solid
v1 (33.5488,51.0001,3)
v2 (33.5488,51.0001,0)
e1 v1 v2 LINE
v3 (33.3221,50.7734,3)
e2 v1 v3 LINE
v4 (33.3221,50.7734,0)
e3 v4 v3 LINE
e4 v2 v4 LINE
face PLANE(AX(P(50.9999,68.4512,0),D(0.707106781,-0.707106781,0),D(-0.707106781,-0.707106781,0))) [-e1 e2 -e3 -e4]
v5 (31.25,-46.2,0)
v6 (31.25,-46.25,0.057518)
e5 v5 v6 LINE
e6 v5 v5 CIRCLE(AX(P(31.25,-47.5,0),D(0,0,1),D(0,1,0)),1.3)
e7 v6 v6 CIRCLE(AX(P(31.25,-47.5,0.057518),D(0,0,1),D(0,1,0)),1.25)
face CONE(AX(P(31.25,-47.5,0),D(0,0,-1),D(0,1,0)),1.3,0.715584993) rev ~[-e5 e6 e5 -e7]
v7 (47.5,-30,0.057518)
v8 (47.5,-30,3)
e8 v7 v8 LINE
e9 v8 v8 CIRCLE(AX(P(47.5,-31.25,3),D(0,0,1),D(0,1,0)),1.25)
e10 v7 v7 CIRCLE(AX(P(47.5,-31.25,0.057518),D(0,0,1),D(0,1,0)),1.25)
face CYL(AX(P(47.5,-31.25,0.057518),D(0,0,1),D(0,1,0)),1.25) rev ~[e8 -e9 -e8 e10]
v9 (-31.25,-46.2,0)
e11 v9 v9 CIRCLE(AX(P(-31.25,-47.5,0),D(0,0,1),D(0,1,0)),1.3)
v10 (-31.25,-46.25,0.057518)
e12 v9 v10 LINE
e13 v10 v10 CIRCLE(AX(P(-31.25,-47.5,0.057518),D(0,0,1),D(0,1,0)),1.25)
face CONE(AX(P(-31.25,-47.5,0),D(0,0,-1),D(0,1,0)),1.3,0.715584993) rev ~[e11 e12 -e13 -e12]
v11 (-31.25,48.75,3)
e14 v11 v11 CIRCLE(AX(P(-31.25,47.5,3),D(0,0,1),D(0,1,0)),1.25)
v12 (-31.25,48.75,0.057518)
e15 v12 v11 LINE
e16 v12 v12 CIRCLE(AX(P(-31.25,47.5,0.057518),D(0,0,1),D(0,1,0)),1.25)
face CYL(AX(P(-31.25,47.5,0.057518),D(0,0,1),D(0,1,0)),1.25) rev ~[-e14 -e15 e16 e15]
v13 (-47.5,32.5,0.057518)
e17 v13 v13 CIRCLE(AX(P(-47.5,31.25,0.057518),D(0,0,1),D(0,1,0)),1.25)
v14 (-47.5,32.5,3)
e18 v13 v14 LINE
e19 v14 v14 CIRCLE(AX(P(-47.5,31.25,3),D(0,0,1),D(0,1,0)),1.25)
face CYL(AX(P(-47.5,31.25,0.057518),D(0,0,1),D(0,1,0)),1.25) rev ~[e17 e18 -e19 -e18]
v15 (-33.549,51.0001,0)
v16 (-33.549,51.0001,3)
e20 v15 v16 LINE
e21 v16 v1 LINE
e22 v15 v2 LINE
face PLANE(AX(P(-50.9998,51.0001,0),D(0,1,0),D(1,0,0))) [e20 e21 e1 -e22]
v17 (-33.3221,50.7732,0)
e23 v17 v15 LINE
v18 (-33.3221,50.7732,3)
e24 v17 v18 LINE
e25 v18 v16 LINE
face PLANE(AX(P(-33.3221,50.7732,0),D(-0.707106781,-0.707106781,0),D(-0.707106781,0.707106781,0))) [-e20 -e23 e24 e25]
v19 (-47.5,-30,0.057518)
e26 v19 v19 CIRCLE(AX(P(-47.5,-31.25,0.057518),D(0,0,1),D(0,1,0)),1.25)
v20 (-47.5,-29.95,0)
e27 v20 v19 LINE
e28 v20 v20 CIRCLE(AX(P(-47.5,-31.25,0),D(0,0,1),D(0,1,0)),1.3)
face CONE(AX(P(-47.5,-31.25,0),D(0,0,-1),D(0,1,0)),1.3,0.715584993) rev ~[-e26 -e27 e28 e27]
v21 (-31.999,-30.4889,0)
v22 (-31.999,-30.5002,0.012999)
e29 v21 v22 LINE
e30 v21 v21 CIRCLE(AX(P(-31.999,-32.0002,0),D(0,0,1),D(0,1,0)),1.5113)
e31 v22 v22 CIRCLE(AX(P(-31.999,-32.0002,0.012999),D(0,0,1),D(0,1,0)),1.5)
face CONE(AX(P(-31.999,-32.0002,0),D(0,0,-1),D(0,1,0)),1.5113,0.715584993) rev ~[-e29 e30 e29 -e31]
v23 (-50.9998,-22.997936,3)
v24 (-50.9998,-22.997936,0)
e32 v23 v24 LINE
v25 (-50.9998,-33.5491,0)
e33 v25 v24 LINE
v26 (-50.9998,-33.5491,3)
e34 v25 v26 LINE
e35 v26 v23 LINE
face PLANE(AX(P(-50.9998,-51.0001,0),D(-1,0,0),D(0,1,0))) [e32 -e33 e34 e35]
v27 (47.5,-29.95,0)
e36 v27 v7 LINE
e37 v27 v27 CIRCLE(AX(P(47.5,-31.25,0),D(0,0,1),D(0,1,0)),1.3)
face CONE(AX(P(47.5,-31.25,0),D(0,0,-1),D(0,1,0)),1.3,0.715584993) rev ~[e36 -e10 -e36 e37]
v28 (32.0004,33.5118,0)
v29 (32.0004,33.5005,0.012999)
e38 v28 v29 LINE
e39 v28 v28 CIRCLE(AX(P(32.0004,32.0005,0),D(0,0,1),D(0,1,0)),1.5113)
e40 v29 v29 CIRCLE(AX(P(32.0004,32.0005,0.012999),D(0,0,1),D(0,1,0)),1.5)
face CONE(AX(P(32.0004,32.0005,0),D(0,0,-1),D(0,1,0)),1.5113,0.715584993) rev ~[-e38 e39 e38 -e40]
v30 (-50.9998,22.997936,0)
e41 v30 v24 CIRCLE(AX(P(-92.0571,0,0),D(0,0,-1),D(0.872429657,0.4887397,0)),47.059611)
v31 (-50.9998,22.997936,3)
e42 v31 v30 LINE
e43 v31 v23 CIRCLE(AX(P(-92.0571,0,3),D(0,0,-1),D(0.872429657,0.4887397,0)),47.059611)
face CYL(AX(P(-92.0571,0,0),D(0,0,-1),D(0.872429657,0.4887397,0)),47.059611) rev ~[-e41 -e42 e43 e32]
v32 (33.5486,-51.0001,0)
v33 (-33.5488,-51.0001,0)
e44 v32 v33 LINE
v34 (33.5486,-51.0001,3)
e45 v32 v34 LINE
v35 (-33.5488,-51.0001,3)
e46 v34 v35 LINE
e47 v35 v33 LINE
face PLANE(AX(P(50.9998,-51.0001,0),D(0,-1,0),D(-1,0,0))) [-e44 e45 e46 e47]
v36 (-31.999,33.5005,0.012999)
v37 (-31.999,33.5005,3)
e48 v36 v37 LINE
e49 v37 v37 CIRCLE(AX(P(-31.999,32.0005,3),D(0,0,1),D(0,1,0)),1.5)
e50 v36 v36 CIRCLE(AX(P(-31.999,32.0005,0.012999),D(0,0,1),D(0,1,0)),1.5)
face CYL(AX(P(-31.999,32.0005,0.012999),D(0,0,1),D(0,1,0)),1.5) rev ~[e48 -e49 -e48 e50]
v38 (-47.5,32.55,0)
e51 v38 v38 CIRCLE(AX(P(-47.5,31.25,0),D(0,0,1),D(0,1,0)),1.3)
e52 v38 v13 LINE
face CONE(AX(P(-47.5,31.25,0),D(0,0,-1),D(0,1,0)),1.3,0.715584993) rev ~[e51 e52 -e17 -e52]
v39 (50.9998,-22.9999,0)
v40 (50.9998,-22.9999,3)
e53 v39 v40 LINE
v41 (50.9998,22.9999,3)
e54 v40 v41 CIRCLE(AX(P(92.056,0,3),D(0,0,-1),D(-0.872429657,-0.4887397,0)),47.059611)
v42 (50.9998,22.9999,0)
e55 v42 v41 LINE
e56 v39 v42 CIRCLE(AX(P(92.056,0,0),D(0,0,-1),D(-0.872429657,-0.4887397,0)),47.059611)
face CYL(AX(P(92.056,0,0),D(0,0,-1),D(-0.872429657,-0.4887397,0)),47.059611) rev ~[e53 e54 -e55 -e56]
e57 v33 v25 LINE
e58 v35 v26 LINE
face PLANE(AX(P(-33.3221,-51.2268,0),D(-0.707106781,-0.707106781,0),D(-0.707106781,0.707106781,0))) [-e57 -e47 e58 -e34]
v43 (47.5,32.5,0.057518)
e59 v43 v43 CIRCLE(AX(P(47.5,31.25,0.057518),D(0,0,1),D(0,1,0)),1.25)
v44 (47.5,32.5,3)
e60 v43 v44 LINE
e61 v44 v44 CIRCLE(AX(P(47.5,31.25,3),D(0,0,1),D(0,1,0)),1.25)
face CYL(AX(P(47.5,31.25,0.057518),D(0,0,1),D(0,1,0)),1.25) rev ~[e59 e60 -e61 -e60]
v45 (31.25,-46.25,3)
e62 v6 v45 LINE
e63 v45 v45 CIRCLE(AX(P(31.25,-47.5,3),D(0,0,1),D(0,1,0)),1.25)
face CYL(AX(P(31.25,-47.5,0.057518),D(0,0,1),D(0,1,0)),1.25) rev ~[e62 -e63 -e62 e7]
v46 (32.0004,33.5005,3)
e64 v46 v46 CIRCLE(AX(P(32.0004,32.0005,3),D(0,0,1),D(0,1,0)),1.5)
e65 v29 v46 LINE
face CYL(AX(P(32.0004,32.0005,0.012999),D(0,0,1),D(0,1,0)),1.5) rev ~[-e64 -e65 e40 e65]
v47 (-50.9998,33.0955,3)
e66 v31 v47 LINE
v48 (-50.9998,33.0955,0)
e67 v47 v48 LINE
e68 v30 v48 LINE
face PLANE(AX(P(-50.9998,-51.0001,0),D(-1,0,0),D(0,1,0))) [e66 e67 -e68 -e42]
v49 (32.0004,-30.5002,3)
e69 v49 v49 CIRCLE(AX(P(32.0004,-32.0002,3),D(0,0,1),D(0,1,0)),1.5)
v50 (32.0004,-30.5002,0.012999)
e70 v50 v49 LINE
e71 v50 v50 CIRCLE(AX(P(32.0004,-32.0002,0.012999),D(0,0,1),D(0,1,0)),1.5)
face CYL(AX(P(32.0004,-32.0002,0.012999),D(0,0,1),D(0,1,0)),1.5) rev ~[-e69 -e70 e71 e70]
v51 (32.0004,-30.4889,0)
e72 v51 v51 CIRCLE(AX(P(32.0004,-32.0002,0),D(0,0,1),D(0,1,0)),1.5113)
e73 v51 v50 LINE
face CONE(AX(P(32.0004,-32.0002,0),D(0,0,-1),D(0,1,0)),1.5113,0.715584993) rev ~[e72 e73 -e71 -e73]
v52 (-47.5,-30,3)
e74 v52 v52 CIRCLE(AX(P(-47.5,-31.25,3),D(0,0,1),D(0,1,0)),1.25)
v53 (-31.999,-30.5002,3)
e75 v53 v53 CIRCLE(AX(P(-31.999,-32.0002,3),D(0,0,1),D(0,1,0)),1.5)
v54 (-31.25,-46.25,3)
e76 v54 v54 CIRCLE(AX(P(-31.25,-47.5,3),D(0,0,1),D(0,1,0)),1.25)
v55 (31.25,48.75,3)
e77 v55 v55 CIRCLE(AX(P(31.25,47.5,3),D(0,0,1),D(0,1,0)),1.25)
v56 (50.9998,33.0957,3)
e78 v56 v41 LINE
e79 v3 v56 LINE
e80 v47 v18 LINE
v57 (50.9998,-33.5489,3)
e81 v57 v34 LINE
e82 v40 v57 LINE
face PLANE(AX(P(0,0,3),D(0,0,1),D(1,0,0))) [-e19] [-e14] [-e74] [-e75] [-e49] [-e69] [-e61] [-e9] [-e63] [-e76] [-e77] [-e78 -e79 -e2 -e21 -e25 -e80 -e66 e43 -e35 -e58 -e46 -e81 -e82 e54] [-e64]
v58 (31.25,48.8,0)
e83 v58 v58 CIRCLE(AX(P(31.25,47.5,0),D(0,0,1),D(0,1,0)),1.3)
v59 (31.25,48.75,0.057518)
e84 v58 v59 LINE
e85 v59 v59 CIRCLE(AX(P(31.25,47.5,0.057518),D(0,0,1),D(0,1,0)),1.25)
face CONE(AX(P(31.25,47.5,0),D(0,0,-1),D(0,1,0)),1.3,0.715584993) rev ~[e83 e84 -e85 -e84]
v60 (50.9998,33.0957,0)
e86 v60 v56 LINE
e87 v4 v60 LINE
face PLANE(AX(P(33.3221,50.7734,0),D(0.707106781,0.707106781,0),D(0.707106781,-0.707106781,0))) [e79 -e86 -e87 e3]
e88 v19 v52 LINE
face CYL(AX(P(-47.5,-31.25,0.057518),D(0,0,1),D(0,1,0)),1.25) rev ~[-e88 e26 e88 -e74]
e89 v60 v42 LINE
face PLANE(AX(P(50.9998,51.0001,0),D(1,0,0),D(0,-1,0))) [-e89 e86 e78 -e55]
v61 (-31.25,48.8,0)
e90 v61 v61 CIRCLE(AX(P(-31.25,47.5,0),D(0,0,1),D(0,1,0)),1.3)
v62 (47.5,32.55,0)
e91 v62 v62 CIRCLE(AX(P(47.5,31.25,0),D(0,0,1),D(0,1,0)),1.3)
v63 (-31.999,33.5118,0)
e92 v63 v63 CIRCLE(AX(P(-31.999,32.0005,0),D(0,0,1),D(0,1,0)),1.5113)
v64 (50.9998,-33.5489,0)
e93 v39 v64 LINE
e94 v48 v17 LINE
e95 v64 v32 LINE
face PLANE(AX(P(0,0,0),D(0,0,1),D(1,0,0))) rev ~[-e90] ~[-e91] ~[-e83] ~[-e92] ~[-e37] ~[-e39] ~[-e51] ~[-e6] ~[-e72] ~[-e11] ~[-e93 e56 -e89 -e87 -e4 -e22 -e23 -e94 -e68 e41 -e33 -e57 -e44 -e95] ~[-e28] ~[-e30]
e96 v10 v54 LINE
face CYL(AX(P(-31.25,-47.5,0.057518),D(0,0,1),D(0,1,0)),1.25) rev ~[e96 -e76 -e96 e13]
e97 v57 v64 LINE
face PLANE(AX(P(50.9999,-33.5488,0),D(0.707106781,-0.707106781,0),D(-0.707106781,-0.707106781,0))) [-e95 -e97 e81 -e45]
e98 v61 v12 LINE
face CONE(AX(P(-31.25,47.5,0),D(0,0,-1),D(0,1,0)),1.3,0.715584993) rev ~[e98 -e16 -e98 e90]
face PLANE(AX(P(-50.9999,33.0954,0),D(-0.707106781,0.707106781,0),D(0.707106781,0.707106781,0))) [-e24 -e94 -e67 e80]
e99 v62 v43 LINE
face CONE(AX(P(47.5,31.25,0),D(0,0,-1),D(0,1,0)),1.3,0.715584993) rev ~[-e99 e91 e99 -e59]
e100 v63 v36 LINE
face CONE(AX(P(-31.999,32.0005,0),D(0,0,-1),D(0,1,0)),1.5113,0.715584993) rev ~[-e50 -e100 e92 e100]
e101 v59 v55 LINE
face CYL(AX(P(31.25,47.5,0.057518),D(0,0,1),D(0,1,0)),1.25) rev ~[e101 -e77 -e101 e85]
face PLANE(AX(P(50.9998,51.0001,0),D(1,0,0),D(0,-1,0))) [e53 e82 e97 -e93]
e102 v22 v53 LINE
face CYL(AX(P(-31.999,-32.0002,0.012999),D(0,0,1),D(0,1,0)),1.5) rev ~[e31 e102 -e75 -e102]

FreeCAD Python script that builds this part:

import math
import FreeCAD as App
import Part
import Sketcher

V = App.Vector
Q = App.Units.Quantity


def add_polygon(sketch, points):
    """Adds a closed chain of lines whose ends are joined by coincident constraints."""
    first, n = sketch.GeometryCount, len(points)
    for a, b in zip(points, points[1:] + points[:1]):
        sketch.addGeometry(Part.LineSegment(App.Vector(*a, 0), App.Vector(*b, 0)), False)
    for i in range(n):
        sketch.addConstraint(Sketcher.Constraint("Coincident", first + i, 2, first + (i + 1) % n, 1))

doc = App.newDocument("Part")
body = doc.addObject("PartDesign::Body", "Body")

# Sketch on XY plane
sketch1 = doc.addObject("Sketcher::SketchObject", "Sketch")
body.addObject(sketch1)
sketch1.AttachmentSupport = (doc.XY_Plane, [""])
sketch1.MapMode = "FlatFace"
add_polygon(sketch1, [(-50.9998, -51.0001), (50.9998, -51.0001), (50.9998, 51.0001), (-50.9998, 51.0001)])  # lines 0-3
sketch1.addConstraint([
    Sketcher.Constraint("Horizontal", 0),
    Sketcher.Constraint("Vertical", 1),
    Sketcher.Constraint("Horizontal", 2),
    Sketcher.Constraint("Vertical", 3),
    Sketcher.Constraint("Symmetric", 0, 2, 2, 2, -1, 1),
    Sketcher.Constraint("DistanceX", 0, 1, 0, 2, Q("101.9996 mm")),
    Sketcher.Constraint("DistanceY", 1, 1, 1, 2, Q("102.0002 mm")),
])
pad1 = doc.addObject("PartDesign::Pad", "Pad")
body.addObject(pad1)
pad1.Profile = sketch1
pad1.Length = 3

# Sketch on XY plane
sketch2 = doc.addObject("Sketcher::SketchObject", "Sketch001")
body.addObject(sketch2)
sketch2.AttachmentSupport = (doc.XY_Plane, [""])
sketch2.MapMode = "FlatFace"
sketch2.addGeometry([
    Part.Circle(V(-31.999, -32.0002, 0), V(0, 0, 1), 1.5),
    Part.Circle(V(-31.999, 32.0005, 0), V(0, 0, 1), 1.5),
    Part.Circle(V(32.0004, 32.0005, 0), V(0, 0, 1), 1.5),
    Part.Circle(V(32.0004, -32.0002, 0), V(0, 0, 1), 1.5),
], False)
sketch2.addConstraint([
    Sketcher.Constraint("Equal", 0, 1),
    Sketcher.Constraint("Equal", 1, 2),
    Sketcher.Constraint("Equal", 2, 3),
    Sketcher.Constraint("Symmetric", 0, 3, 1, 3, -1),
    Sketcher.Constraint("Symmetric", 2, 3, 3, 3, -1),
    Sketcher.Constraint("Horizontal", 1, 3, 2, 3),
    Sketcher.Constraint("Diameter", 0, Q("3 mm")),
    Sketcher.Constraint("DistanceX", 0, 3, -1, 1, Q("31.999 mm")),
    Sketcher.Constraint("DistanceY", 0, 3, -1, 1, Q("32.0002 mm")),
    Sketcher.Constraint("DistanceX", -1, 1, 2, 3, Q("32.0004 mm")),
])
doc.recompute()
hole = doc.addObject("PartDesign::Hole", "Hole")
body.addObject(hole)
hole.Profile = sketch2
hole.ThreadType = "None"
hole.Diameter = 3
hole.DepthType = "ThroughAll"
hole.HoleCutType = "Countersink"
hole.HoleCutDiameter = 3.0226
hole.HoleCutCountersinkAngle = 82
hole.Reversed = True

# Sketch on XY plane
sketch3 = doc.addObject("Sketcher::SketchObject", "Sketch002")
body.addObject(sketch3)
sketch3.AttachmentSupport = (doc.XY_Plane, [""])
sketch3.MapMode = "FlatFace"
sketch3.addGeometry([
    Part.Circle(V(47.5, -31.25, 0), V(0, 0, 1), 1.25),  # 0
    Part.Circle(V(31.25, -47.5, 0), V(0, 0, 1), 1.25),  # 1
    Part.Circle(V(-31.25, -47.5, 0), V(0, 0, 1), 1.25),  # 2
    Part.Circle(V(-47.5, -31.25, 0), V(0, 0, 1), 1.25),  # 3
    Part.Circle(V(47.5, 31.25, 0), V(0, 0, 1), 1.25),  # 4
    Part.Circle(V(31.25, 47.5, 0), V(0, 0, 1), 1.25),  # 5
    Part.Circle(V(-31.25, 47.5, 0), V(0, 0, 1), 1.25),  # 6
    Part.Circle(V(-47.5, 31.25, 0), V(0, 0, 1), 1.25),  # 7
], False)
sketch3.addConstraint([
    Sketcher.Constraint("Equal", 0, 1),
    Sketcher.Constraint("Equal", 1, 2),
    Sketcher.Constraint("Equal", 2, 3),
    Sketcher.Constraint("Equal", 3, 4),
    Sketcher.Constraint("Equal", 4, 5),
    Sketcher.Constraint("Equal", 5, 6),
    Sketcher.Constraint("Equal", 6, 7),
    Sketcher.Constraint("Symmetric", 3, 3, 4, 3, -1, 1),
    Sketcher.Constraint("Symmetric", 2, 3, 5, 3, -1, 1),
    Sketcher.Constraint("Symmetric", 1, 3, 6, 3, -1, 1),
    Sketcher.Constraint("Symmetric", 0, 3, 7, 3, -1, 1),
    Sketcher.Constraint("Symmetric", 1, 3, 2, 3, -2),
    Sketcher.Constraint("Symmetric", 0, 3, 3, 3, -2),
    Sketcher.Constraint("Diameter", 0, Q("2.5 mm")),
    Sketcher.Constraint("DistanceX", 3, 3, 0, 3, Q("95 mm")),
    Sketcher.Constraint("DistanceY", 1, 3, 5, 3, Q("95 mm")),
    Sketcher.Constraint("DistanceX", 2, 3, 1, 3, Q("62.5 mm")),
    Sketcher.Constraint("DistanceY", 0, 3, 4, 3, Q("62.5 mm")),
])
doc.recompute()
hole2 = doc.addObject("PartDesign::Hole", "Hole001")
body.addObject(hole2)
hole2.Profile = sketch3
hole2.ThreadType = "None"
hole2.Diameter = 2.5
hole2.DepthType = "ThroughAll"
hole2.HoleCutType = "Countersink"
hole2.HoleCutDiameter = 2.6
hole2.HoleCutCountersinkAngle = 82
hole2.Reversed = True

# Sketch on XY plane
sketch4 = doc.addObject("Sketcher::SketchObject", "Sketch003")
body.addObject(sketch4)
sketch4.AttachmentSupport = (doc.XY_Plane, [""])
sketch4.MapMode = "FlatFace"
add_polygon(sketch4, [(-50.9999, 33.0954), (-68.6779, 50.7734), (-51.0001, 68.4512), (-33.3221, 50.7732)])  # lines 0-3
add_polygon(sketch4, [(51.0001, 33.0954), (33.3221, 50.7734), (50.9999, 68.4512), (68.6779, 50.7732)])  # lines 4-7
add_polygon(sketch4, [(51.0001, -68.9046), (33.3221, -51.2266), (50.9999, -33.5488), (68.6779, -51.2268)])  # lines 8-11
add_polygon(sketch4, [(-50.9999, -68.9046), (-68.6779, -51.2266), (-51.0001, -33.5488), (-33.3221, -51.2268)])  # lines 12-15
sketch4.addConstraint([
    Sketcher.Constraint("Symmetric", 2, 2, 4, 2, -2),
    Sketcher.Constraint("Symmetric", 1, 2, 5, 2, -2),
    Sketcher.Constraint("Symmetric", 0, 2, 6, 2, -2),
    Sketcher.Constraint("Symmetric", 3, 2, 7, 2, -2),
    Sketcher.Constraint("Symmetric", 10, 2, 12, 2, -2),
    Sketcher.Constraint("Symmetric", 9, 2, 13, 2, -2),
    Sketcher.Constraint("Symmetric", 8, 2, 14, 2, -2),
    Sketcher.Constraint("Symmetric", 11, 2, 15, 2, -2),
    Sketcher.Constraint("Perpendicular", 0, 1),
    Sketcher.Constraint("Perpendicular", 1, 2),
    Sketcher.Constraint("Perpendicular", 2, 3),
    Sketcher.Constraint("Perpendicular", 3, 4),
    Sketcher.Constraint("Perpendicular", 7, 8),
    Sketcher.Constraint("Perpendicular", 8, 9),
    Sketcher.Constraint("Perpendicular", 9, 10),
    Sketcher.Constraint("Perpendicular", 10, 11),
    Sketcher.Constraint("Horizontal", 0, 2, 2, 2),
    Sketcher.Constraint("Horizontal", 8, 2, 10, 2),
    Sketcher.Constraint("Vertical", 4, 2, 8, 2),
    Sketcher.Constraint("Vertical", 5, 2, 9, 2),
    Sketcher.Constraint("DistanceX", 1, 2, -1, 1, Q("51 mm")),
    Sketcher.Constraint("DistanceY", 8, 2, 4, 2, Q("102 mm")),
    Sketcher.Constraint("DistanceX", 0, 2, -1, 1, Q("68.678 mm")),
    Sketcher.Constraint("DistanceY", -1, 1, 0, 2, Q("50.7734 mm")),
])
pocket1 = doc.addObject("PartDesign::Pocket", "Pocket")
body.addObject(pocket1)
pocket1.Profile = sketch4
pocket1.Length = 3
pocket1.Reversed = True

# Sketch on XY plane
sketch5 = doc.addObject("Sketcher::SketchObject", "Sketch004")
body.addObject(sketch5)
sketch5.AttachmentSupport = (doc.XY_Plane, [""])
sketch5.MapMode = "FlatFace"
sketch5.addGeometry([
    Part.LineSegment(V(50.9998, 22.9999, 0), V(50.9998, -22.9999, 0)),
    Part.ArcOfCircle(Part.Circle(V(92.056, 0, 0), V(0, 0, 1), 47.059611), math.radians(150.742221), math.radians(209.257779)),
    Part.LineSegment(V(-51.0009, -22.9999, 0), V(-51.0009, 22.9999, 0)),
    Part.ArcOfCircle(Part.Circle(V(-92.0571, 0, 0), V(0, 0, 1), 47.059611), math.radians(-29.257779), math.radians(29.257779)),
], False)
sketch5.addConstraint([
    Sketcher.Constraint("Coincident", 0, 1, 1, 1),
    Sketcher.Constraint("Coincident", 1, 2, 0, 2),
    Sketcher.Constraint("Coincident", 2, 1, 3, 1),
    Sketcher.Constraint("Coincident", 3, 2, 2, 2),
    Sketcher.Constraint("Vertical", 0),
    Sketcher.Constraint("Vertical", 2),
    Sketcher.Constraint("Equal", 1, 3),
    Sketcher.Constraint("PointOnObject", 1, 3, -1),
    Sketcher.Constraint("PointOnObject", 3, 3, -1),
    Sketcher.Constraint("Horizontal", 1, 2, 2, 1),
    Sketcher.Constraint("DistanceY", -1, 1, 0, 1, Q("23 mm")),
    Sketcher.Constraint("Radius", 1, Q("47.0596 mm")),
    Sketcher.Constraint("DistanceX", -1, 1, 1, 3, Q("92.056 mm")),
    Sketcher.Constraint("DistanceX", 3, 3, -1, 1, Q("92.057 mm")),
])
pocket2 = doc.addObject("PartDesign::Pocket", "Pocket001")
body.addObject(pocket2)
pocket2.Profile = sketch5
pocket2.Length = 3
pocket2.Reversed = True

doc.recompute()
